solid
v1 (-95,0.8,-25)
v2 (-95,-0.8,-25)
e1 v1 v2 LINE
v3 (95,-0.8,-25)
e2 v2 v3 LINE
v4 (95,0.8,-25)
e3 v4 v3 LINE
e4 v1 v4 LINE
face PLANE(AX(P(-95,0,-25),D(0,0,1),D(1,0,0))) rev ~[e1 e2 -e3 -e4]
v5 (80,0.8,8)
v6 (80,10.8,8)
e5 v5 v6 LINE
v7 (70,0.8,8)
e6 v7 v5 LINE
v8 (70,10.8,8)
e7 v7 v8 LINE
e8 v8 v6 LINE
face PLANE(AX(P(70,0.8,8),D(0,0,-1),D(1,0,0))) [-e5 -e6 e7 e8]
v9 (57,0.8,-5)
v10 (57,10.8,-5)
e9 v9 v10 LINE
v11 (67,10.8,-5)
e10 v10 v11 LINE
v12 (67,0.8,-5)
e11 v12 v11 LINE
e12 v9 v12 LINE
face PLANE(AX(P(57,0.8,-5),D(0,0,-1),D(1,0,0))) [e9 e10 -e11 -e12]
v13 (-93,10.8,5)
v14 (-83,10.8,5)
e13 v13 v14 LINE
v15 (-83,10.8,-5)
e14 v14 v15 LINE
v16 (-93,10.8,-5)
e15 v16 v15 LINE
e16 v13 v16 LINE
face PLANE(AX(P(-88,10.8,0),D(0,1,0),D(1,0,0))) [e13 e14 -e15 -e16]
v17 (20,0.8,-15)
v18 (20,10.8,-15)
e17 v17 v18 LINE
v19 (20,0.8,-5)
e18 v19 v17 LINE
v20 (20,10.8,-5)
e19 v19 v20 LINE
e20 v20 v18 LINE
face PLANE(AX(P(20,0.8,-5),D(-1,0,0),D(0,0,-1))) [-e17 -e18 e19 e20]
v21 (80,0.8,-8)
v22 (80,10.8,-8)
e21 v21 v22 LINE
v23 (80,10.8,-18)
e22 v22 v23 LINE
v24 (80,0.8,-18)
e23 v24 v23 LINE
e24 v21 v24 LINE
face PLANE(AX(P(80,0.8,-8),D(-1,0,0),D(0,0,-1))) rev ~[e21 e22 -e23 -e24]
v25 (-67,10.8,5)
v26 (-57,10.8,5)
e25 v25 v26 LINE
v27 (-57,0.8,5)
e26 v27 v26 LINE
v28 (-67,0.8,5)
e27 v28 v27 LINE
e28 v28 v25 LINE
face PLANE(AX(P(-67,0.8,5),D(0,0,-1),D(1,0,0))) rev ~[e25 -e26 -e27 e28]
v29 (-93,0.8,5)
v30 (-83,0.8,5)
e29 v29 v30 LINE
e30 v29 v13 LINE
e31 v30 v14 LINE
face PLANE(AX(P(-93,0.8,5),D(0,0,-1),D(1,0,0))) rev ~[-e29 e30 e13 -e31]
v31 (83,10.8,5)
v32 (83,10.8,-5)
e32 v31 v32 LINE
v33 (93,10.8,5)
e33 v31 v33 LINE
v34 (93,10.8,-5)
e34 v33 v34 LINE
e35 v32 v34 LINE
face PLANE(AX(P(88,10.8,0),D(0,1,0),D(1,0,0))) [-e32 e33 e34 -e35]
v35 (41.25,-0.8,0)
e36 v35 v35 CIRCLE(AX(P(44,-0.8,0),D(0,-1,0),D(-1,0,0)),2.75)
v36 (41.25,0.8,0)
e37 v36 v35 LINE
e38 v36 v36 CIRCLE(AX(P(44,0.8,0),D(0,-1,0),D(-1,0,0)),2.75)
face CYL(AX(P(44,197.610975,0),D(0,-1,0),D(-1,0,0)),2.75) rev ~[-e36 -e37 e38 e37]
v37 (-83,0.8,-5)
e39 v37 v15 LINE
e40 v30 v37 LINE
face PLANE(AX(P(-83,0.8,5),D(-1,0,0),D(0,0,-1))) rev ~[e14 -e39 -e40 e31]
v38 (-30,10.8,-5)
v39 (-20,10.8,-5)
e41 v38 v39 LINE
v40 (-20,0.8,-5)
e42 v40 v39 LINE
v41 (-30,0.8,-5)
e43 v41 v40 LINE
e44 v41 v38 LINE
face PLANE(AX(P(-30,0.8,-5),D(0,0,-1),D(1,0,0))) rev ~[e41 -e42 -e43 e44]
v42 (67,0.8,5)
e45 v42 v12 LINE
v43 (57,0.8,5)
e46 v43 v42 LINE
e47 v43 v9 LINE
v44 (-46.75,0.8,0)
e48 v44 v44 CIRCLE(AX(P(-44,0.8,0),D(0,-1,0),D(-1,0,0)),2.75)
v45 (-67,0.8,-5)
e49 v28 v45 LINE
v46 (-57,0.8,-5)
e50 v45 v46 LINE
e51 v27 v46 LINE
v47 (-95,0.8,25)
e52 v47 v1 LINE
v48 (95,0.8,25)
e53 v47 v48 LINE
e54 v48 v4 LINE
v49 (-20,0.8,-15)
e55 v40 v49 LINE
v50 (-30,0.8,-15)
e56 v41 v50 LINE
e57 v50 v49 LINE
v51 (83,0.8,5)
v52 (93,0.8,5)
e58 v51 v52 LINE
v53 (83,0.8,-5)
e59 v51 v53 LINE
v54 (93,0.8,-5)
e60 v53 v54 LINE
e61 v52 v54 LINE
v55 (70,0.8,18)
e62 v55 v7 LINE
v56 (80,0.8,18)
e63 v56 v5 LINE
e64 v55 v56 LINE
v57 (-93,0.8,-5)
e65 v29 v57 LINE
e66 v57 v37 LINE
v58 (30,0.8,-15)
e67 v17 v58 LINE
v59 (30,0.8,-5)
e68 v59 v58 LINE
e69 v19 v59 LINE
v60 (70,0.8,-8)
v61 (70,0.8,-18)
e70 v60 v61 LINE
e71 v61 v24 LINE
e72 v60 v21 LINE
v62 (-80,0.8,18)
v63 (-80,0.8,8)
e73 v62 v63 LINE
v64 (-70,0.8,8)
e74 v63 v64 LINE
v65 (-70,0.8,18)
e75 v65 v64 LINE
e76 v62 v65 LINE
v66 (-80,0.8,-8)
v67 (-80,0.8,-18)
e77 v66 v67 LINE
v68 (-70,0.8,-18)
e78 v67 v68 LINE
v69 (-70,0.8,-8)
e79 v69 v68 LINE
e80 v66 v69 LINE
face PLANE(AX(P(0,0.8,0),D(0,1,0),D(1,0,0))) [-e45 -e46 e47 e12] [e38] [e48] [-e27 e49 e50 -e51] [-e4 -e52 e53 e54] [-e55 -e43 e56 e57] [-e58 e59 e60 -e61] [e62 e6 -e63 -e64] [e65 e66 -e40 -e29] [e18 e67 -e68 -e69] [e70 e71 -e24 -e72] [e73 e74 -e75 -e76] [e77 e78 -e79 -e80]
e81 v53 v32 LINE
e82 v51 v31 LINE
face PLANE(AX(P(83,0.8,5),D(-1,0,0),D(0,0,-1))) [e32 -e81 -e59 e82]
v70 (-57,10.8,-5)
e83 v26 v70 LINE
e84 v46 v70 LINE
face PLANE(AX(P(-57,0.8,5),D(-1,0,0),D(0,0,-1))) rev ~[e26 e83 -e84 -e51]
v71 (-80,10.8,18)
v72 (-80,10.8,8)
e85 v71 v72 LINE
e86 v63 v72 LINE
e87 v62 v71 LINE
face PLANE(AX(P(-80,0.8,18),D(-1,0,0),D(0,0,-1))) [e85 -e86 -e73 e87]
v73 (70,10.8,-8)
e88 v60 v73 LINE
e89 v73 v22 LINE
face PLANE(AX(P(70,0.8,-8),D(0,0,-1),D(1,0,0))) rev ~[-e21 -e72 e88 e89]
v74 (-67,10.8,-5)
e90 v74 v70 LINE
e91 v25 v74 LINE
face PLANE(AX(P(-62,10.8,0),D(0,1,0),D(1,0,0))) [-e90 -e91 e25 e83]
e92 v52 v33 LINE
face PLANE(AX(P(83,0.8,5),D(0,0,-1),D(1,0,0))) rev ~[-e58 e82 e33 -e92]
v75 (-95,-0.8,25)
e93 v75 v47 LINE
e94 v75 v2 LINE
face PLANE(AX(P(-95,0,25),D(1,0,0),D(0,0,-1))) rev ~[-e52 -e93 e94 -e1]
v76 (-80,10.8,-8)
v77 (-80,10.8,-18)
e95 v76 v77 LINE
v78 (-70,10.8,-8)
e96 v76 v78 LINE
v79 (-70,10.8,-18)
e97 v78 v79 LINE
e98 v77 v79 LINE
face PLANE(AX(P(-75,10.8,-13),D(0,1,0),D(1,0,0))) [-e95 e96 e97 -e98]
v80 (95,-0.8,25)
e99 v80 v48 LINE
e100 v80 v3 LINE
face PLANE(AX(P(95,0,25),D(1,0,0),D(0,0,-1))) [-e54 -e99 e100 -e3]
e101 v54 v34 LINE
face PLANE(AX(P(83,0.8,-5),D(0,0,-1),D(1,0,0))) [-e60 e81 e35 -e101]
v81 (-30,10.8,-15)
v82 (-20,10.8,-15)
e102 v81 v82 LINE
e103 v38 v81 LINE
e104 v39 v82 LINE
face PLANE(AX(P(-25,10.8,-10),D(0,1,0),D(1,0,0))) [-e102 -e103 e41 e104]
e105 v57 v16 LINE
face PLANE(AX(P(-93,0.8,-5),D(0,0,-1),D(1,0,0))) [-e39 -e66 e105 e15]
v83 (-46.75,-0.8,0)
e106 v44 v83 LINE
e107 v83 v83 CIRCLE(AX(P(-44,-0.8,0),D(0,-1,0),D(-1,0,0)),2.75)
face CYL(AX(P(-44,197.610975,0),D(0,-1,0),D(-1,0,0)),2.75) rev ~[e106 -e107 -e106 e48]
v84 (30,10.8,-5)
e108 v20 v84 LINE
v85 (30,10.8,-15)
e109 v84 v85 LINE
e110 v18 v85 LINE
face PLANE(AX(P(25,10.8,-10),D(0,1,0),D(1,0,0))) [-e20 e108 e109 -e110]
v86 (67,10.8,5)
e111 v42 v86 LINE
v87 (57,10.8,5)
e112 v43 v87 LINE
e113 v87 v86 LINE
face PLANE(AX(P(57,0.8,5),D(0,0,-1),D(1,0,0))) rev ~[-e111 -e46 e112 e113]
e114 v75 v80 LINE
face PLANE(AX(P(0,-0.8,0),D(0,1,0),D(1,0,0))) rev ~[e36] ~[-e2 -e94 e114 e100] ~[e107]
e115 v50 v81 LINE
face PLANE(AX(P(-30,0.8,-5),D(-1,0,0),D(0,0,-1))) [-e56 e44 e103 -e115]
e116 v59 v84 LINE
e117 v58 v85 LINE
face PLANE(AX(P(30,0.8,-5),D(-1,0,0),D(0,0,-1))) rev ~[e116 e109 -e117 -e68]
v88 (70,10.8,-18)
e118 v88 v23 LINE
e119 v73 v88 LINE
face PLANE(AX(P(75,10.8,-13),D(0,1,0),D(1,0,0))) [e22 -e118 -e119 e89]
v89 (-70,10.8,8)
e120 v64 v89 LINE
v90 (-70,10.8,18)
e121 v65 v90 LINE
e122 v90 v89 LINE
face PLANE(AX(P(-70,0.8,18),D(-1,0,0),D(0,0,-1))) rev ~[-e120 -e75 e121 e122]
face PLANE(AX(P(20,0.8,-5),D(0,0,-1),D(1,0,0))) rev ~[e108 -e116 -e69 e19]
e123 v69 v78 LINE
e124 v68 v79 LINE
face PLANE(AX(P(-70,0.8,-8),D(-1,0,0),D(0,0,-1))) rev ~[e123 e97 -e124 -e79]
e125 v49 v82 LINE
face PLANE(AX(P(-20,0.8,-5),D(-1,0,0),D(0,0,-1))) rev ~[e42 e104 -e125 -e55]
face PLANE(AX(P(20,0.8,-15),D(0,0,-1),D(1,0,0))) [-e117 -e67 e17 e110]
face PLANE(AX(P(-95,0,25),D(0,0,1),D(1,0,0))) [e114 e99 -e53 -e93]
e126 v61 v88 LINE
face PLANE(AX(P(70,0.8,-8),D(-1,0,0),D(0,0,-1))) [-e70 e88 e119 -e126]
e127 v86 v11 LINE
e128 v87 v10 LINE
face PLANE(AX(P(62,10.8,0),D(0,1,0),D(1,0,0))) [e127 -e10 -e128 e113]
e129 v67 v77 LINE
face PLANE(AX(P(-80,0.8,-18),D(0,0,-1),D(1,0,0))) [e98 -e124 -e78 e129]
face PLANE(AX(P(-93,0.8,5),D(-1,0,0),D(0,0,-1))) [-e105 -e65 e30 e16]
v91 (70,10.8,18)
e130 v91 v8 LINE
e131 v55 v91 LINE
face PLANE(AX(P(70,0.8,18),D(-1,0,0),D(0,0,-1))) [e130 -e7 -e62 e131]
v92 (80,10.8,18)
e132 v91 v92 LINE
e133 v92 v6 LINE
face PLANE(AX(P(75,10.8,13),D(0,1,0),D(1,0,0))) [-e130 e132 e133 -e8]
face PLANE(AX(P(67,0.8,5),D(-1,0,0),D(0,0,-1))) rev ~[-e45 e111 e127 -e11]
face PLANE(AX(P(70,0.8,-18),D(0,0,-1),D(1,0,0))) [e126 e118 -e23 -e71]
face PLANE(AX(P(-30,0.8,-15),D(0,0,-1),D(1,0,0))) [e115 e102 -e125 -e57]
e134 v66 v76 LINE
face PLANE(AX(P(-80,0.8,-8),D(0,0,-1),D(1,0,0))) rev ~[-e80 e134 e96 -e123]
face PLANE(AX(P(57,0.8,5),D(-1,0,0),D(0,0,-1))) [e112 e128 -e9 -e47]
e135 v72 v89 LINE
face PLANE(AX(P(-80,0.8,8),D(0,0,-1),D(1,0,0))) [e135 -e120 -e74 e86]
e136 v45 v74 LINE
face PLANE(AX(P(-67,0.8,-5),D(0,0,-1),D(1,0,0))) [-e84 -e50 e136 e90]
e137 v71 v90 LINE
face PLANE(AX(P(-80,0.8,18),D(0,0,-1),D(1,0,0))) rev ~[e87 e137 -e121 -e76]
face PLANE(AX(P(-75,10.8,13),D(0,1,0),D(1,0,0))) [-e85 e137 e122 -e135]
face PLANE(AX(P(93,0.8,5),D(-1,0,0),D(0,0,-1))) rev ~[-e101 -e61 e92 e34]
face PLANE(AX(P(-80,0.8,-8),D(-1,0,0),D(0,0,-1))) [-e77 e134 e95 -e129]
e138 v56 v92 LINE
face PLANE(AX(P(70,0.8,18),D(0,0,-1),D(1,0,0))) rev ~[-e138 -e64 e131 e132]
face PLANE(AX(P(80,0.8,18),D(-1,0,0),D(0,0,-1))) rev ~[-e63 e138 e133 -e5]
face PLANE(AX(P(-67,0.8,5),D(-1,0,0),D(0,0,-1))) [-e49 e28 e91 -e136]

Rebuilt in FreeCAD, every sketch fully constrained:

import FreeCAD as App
import Part
import Sketcher
from FreeCAD import Vector
Q = App.Units.Quantity

doc = App.newDocument("Part")
params = doc.addObject("Spreadsheet::Sheet", "Params")
for row, (alias, value) in enumerate([
    ("sketch1_width", "190 mm"),
    ("sketch1_height", "50 mm"),
    ("pad1_length", "1.6 mm"),
    ("sketch2_width", "10 mm"),
    ("pad2_length", "10 mm"),
    ("sketch3_diameter", "5.5 mm"),
    ("hole_diameter", "5.5 mm"),
], start=1):
    params.set(f"A{row}", alias)
    params.set(f"B{row}", "=" + value)
    params.setAlias(f"B{row}", alias)

body = doc.addObject("PartDesign::Body", "Body")

# Sketch on XZ plane
sketch1 = body.newObject("Sketcher::SketchObject", "Sketch")
sketch1.AttachmentSupport = (doc.getObject("XZ_Plane"), [""])
sketch1.MapMode = "FlatFace"
sketch1.addGeometry([
    Part.LineSegment(Vector(-95, -25, 0), Vector(-95, 25, 0)),
    Part.LineSegment(Vector(-95, 25, 0), Vector(95, 25, 0)),
    Part.LineSegment(Vector(95, 25, 0), Vector(95, -25, 0)),
    Part.LineSegment(Vector(95, -25, 0), Vector(-95, -25, 0)),
], False)
sketch1.addConstraint([
    Sketcher.Constraint("Coincident", 0, 2, 1, 1),
    Sketcher.Constraint("Coincident", 1, 2, 2, 1),
    Sketcher.Constraint("Coincident", 2, 2, 3, 1),
    Sketcher.Constraint("Coincident", 3, 2, 0, 1),
    Sketcher.Constraint("Vertical", 0),
    Sketcher.Constraint("Horizontal", 1),
    Sketcher.Constraint("Vertical", 2),
    Sketcher.Constraint("Horizontal", 3),
    Sketcher.Constraint("Symmetric", 0, 2, 2, 2, -1, 1),
    Sketcher.Constraint("DistanceX", 1, 1, 1, 2, Q("190 mm")),
    Sketcher.Constraint("DistanceY", 0, 1, 0, 2, Q("50 mm")),
])
sketch1.setExpression("Constraints[9]", "Params.sketch1_width")
sketch1.setExpression("Constraints[10]", "Params.sketch1_height")
pad1 = body.newObject("PartDesign::Pad", "Pad")
pad1.Profile = sketch1
pad1.setExpression("Length", "Params.pad1_length")
pad1.Midplane = True

# Sketch on XZ plane
sketch2 = body.newObject("Sketcher::SketchObject", "Sketch001")
sketch2.AttachmentSupport = (doc.getObject("XZ_Plane"), [""])
sketch2.MapMode = "FlatFace"
sketch2.AttachmentOffset = App.Placement(Vector(0, 0, -0.8), App.Rotation())
sketch2.addGeometry([
    Part.LineSegment(Vector(-67, -5, 0), Vector(-67, 5, 0)),  # 0
    Part.LineSegment(Vector(-67, 5, 0), Vector(-57, 5, 0)),  # 1
    Part.LineSegment(Vector(-57, 5, 0), Vector(-57, -5, 0)),  # 2
    Part.LineSegment(Vector(-57, -5, 0), Vector(-67, -5, 0)),  # 3
    Part.LineSegment(Vector(-80, -18, 0), Vector(-80, -8, 0)),  # 4
    Part.LineSegment(Vector(-80, -8, 0), Vector(-70, -8, 0)),  # 5
    Part.LineSegment(Vector(-70, -8, 0), Vector(-70, -18, 0)),  # 6
    Part.LineSegment(Vector(-70, -18, 0), Vector(-80, -18, 0)),  # 7
    Part.LineSegment(Vector(-80, 8, 0), Vector(-80, 18, 0)),  # 8
    Part.LineSegment(Vector(-80, 18, 0), Vector(-70, 18, 0)),  # 9
    Part.LineSegment(Vector(-70, 18, 0), Vector(-70, 8, 0)),  # 10
    Part.LineSegment(Vector(-70, 8, 0), Vector(-80, 8, 0)),  # 11
    Part.LineSegment(Vector(-93, -5, 0), Vector(-93, 5, 0)),  # 12
    Part.LineSegment(Vector(-93, 5, 0), Vector(-83, 5, 0)),  # 13
    Part.LineSegment(Vector(-83, 5, 0), Vector(-83, -5, 0)),  # 14
    Part.LineSegment(Vector(-83, -5, 0), Vector(-93, -5, 0)),  # 15
    Part.LineSegment(Vector(-30, -15, 0), Vector(-30, -5, 0)),  # 16
    Part.LineSegment(Vector(-30, -5, 0), Vector(-20, -5, 0)),  # 17
    Part.LineSegment(Vector(-20, -5, 0), Vector(-20, -15, 0)),  # 18
    Part.LineSegment(Vector(-20, -15, 0), Vector(-30, -15, 0)),  # 19
    Part.LineSegment(Vector(20, -15, 0), Vector(20, -5, 0)),  # 20
    Part.LineSegment(Vector(20, -5, 0), Vector(30, -5, 0)),  # 21
    Part.LineSegment(Vector(30, -5, 0), Vector(30, -15, 0)),  # 22
    Part.LineSegment(Vector(30, -15, 0), Vector(20, -15, 0)),  # 23
    Part.LineSegment(Vector(83, -5, 0), Vector(83, 5, 0)),  # 24
    Part.LineSegment(Vector(83, 5, 0), Vector(93, 5, 0)),  # 25
    Part.LineSegment(Vector(93, 5, 0), Vector(93, -5, 0)),  # 26
    Part.LineSegment(Vector(93, -5, 0), Vector(83, -5, 0)),  # 27
    Part.LineSegment(Vector(70, 8, 0), Vector(70, 18, 0)),  # 28
    Part.LineSegment(Vector(70, 18, 0), Vector(80, 18, 0)),  # 29
    Part.LineSegment(Vector(80, 18, 0), Vector(80, 8, 0)),  # 30
    Part.LineSegment(Vector(80, 8, 0), Vector(70, 8, 0)),  # 31
    Part.LineSegment(Vector(57, -5, 0), Vector(57, 5, 0)),  # 32
    Part.LineSegment(Vector(57, 5, 0), Vector(67, 5, 0)),  # 33
    Part.LineSegment(Vector(67, 5, 0), Vector(67, -5, 0)),  # 34
    Part.LineSegment(Vector(67, -5, 0), Vector(57, -5, 0)),  # 35
    Part.LineSegment(Vector(70, -18, 0), Vector(70, -8, 0)),  # 36
    Part.LineSegment(Vector(70, -8, 0), Vector(80, -8, 0)),  # 37
    Part.LineSegment(Vector(80, -8, 0), Vector(80, -18, 0)),  # 38
    Part.LineSegment(Vector(80, -18, 0), Vector(70, -18, 0)),  # 39
], False)
sketch2.addConstraint([
    Sketcher.Constraint("Coincident", 0, 2, 1, 1),
    Sketcher.Constraint("Coincident", 1, 2, 2, 1),
    Sketcher.Constraint("Coincident", 2, 2, 3, 1),
    Sketcher.Constraint("Coincident", 3, 2, 0, 1),
    Sketcher.Constraint("Coincident", 4, 2, 5, 1),
    Sketcher.Constraint("Coincident", 5, 2, 6, 1),
    Sketcher.Constraint("Coincident", 6, 2, 7, 1),
    Sketcher.Constraint("Coincident", 7, 2, 4, 1),
    Sketcher.Constraint("Coincident", 8, 2, 9, 1),
    Sketcher.Constraint("Coincident", 9, 2, 10, 1),
    Sketcher.Constraint("Coincident", 10, 2, 11, 1),
    Sketcher.Constraint("Coincident", 11, 2, 8, 1),
    Sketcher.Constraint("Coincident", 12, 2, 13, 1),
    Sketcher.Constraint("Coincident", 13, 2, 14, 1),
    Sketcher.Constraint("Coincident", 14, 2, 15, 1),
    Sketcher.Constraint("Coincident", 15, 2, 12, 1),
    Sketcher.Constraint("Coincident", 16, 2, 17, 1),
    Sketcher.Constraint("Coincident", 17, 2, 18, 1),
    Sketcher.Constraint("Coincident", 18, 2, 19, 1),
    Sketcher.Constraint("Coincident", 19, 2, 16, 1),
    Sketcher.Constraint("Coincident", 20, 2, 21, 1),
    Sketcher.Constraint("Coincident", 21, 2, 22, 1),
    Sketcher.Constraint("Coincident", 22, 2, 23, 1),
    Sketcher.Constraint("Coincident", 23, 2, 20, 1),
    Sketcher.Constraint("Coincident", 24, 2, 25, 1),
    Sketcher.Constraint("Coincident", 25, 2, 26, 1),
    Sketcher.Constraint("Coincident", 26, 2, 27, 1),
    Sketcher.Constraint("Coincident", 27, 2, 24, 1),
    Sketcher.Constraint("Coincident", 28, 2, 29, 1),
    Sketcher.Constraint("Coincident", 29, 2, 30, 1),
    Sketcher.Constraint("Coincident", 30, 2, 31, 1),
    Sketcher.Constraint("Coincident", 31, 2, 28, 1),
    Sketcher.Constraint("Coincident", 32, 2, 33, 1),
    Sketcher.Constraint("Coincident", 33, 2, 34, 1),
    Sketcher.Constraint("Coincident", 34, 2, 35, 1),
    Sketcher.Constraint("Coincident", 35, 2, 32, 1),
    Sketcher.Constraint("Coincident", 36, 2, 37, 1),
    Sketcher.Constraint("Coincident", 37, 2, 38, 1),
    Sketcher.Constraint("Coincident", 38, 2, 39, 1),
    Sketcher.Constraint("Coincident", 39, 2, 36, 1),
    Sketcher.Constraint("Vertical", 0),
    Sketcher.Constraint("Horizontal", 1),
    Sketcher.Constraint("Vertical", 2),
    Sketcher.Constraint("Horizontal", 3),
    Sketcher.Constraint("Vertical", 4),
    Sketcher.Constraint("Horizontal", 5),
    Sketcher.Constraint("Vertical", 6),
    Sketcher.Constraint("Horizontal", 7),
    Sketcher.Constraint("Vertical", 8),
    Sketcher.Constraint("Horizontal", 9),
    Sketcher.Constraint("Vertical", 10),
    Sketcher.Constraint("Horizontal", 11),
    Sketcher.Constraint("Vertical", 12),
    Sketcher.Constraint("Horizontal", 13),
    Sketcher.Constraint("Vertical", 14),
    Sketcher.Constraint("Horizontal", 15),
    Sketcher.Constraint("Vertical", 16),
    Sketcher.Constraint("Horizontal", 17),
    Sketcher.Constraint("Vertical", 18),
    Sketcher.Constraint("Horizontal", 19),
    Sketcher.Constraint("Vertical", 20),
    Sketcher.Constraint("Horizontal", 21),
    Sketcher.Constraint("Vertical", 22),
    Sketcher.Constraint("Horizontal", 23),
    Sketcher.Constraint("Vertical", 24),
    Sketcher.Constraint("Horizontal", 25),
    Sketcher.Constraint("Vertical", 26),
    Sketcher.Constraint("Horizontal", 27),
    Sketcher.Constraint("Vertical", 28),
    Sketcher.Constraint("Horizontal", 29),
    Sketcher.Constraint("Vertical", 30),
    Sketcher.Constraint("Horizontal", 31),
    Sketcher.Constraint("Vertical", 32),
    Sketcher.Constraint("Horizontal", 33),
    Sketcher.Constraint("Vertical", 34),
    Sketcher.Constraint("Horizontal", 35),
    Sketcher.Constraint("Vertical", 36),
    Sketcher.Constraint("Horizontal", 37),
    Sketcher.Constraint("Vertical", 38),
    Sketcher.Constraint("Horizontal", 39),
    Sketcher.Constraint("Symmetric", 14, 2, 24, 2, -1, 1),
    Sketcher.Constraint("Symmetric", 12, 2, 26, 2, -1, 1),
    Sketcher.Constraint("Symmetric", 6, 2, 28, 2, -1, 1),
    Sketcher.Constraint("Symmetric", 4, 2, 30, 2, -1, 1),
    Sketcher.Constraint("Symmetric", 2, 2, 32, 2, -1, 1),
    Sketcher.Constraint("Symmetric", 0, 2, 34, 2, -1, 1),
    Sketcher.Constraint("Symmetric", 10, 2, 36, 2, -1, 1),
    Sketcher.Constraint("Symmetric", 8, 2, 38, 2, -1, 1),
    Sketcher.Constraint("Symmetric", 17, 2, 20, 2, -2),
    Sketcher.Constraint("Symmetric", 19, 2, 22, 2, -2),
    Sketcher.Constraint("Symmetric", 9, 2, 28, 2, -2),
    Sketcher.Constraint("Symmetric", 11, 2, 30, 2, -2),
    Sketcher.Constraint("Horizontal", 1, 2, 12, 2),
    Sketcher.Constraint("Horizontal", 3, 2, 14, 2),
    Sketcher.Constraint("Horizontal", 15, 2, 16, 2),
    Sketcher.Constraint("Horizontal", 13, 2, 24, 2),
    Sketcher.Constraint("Equal", 3, 5),
    Sketcher.Constraint("Equal", 11, 13),
    Sketcher.Constraint("Equal", 15, 17),
    Sketcher.Constraint("Equal", 39, 0),
    Sketcher.Constraint("Equal", 2, 4),
    Sketcher.Constraint("Equal", 14, 16),
    Sketcher.Constraint("DistanceX", 1, 1, 1, 2, Q("10 mm")),
    Sketcher.Constraint("DistanceX", 0, 2, -1, 1, Q("67 mm")),
    Sketcher.Constraint("DistanceX", 4, 2, -1, 1, Q("80 mm")),
    Sketcher.Constraint("DistanceY", 4, 2, -1, 1, Q("8 mm")),
    Sketcher.Constraint("DistanceX", 12, 2, -1, 1, Q("93 mm")),
    Sketcher.Constraint("DistanceX", 16, 2, -1, 1, Q("30 mm")),
])
sketch2.setExpression("Constraints[102]", "Params.sketch2_width")
pad2 = body.newObject("PartDesign::Pad", "Pad001")
pad2.Profile = sketch2
pad2.setExpression("Length", "Params.pad2_length")
pad2.Reversed = True

# Sketch on XZ plane
sketch3 = body.newObject("Sketcher::SketchObject", "Sketch002")
sketch3.AttachmentSupport = (doc.getObject("XZ_Plane"), [""])
sketch3.MapMode = "FlatFace"
sketch3.AttachmentOffset = App.Placement(Vector(0, 0, -0.8), App.Rotation())
sketch3.addGeometry([
    Part.Circle(Vector(-44, 0, 0), Vector(0, 0, 1), 2.75),
    Part.Circle(Vector(44, 0, 0), Vector(0, 0, 1), 2.75),
], False)
sketch3.addConstraint([
    Sketcher.Constraint("Equal", 0, 1),
    Sketcher.Constraint("Symmetric", 0, 3, 1, 3, -1, 1),
    Sketcher.Constraint("PointOnObject", 0, 3, -1),
    Sketcher.Constraint("Diameter", 0, Q("5.5 mm")),
    Sketcher.Constraint("DistanceX", 0, 3, -1, 1, Q("44 mm")),
])
sketch3.setExpression("Constraints[3]", "Params.sketch3_diameter")
doc.recompute()
hole = body.newObject("PartDesign::Hole", "Hole")
hole.Profile = sketch3
hole.ThreadType = "None"
hole.setExpression("Diameter", "Params.hole_diameter")
hole.DepthType = "ThroughAll"
hole.Reversed = True

doc.recompute()
